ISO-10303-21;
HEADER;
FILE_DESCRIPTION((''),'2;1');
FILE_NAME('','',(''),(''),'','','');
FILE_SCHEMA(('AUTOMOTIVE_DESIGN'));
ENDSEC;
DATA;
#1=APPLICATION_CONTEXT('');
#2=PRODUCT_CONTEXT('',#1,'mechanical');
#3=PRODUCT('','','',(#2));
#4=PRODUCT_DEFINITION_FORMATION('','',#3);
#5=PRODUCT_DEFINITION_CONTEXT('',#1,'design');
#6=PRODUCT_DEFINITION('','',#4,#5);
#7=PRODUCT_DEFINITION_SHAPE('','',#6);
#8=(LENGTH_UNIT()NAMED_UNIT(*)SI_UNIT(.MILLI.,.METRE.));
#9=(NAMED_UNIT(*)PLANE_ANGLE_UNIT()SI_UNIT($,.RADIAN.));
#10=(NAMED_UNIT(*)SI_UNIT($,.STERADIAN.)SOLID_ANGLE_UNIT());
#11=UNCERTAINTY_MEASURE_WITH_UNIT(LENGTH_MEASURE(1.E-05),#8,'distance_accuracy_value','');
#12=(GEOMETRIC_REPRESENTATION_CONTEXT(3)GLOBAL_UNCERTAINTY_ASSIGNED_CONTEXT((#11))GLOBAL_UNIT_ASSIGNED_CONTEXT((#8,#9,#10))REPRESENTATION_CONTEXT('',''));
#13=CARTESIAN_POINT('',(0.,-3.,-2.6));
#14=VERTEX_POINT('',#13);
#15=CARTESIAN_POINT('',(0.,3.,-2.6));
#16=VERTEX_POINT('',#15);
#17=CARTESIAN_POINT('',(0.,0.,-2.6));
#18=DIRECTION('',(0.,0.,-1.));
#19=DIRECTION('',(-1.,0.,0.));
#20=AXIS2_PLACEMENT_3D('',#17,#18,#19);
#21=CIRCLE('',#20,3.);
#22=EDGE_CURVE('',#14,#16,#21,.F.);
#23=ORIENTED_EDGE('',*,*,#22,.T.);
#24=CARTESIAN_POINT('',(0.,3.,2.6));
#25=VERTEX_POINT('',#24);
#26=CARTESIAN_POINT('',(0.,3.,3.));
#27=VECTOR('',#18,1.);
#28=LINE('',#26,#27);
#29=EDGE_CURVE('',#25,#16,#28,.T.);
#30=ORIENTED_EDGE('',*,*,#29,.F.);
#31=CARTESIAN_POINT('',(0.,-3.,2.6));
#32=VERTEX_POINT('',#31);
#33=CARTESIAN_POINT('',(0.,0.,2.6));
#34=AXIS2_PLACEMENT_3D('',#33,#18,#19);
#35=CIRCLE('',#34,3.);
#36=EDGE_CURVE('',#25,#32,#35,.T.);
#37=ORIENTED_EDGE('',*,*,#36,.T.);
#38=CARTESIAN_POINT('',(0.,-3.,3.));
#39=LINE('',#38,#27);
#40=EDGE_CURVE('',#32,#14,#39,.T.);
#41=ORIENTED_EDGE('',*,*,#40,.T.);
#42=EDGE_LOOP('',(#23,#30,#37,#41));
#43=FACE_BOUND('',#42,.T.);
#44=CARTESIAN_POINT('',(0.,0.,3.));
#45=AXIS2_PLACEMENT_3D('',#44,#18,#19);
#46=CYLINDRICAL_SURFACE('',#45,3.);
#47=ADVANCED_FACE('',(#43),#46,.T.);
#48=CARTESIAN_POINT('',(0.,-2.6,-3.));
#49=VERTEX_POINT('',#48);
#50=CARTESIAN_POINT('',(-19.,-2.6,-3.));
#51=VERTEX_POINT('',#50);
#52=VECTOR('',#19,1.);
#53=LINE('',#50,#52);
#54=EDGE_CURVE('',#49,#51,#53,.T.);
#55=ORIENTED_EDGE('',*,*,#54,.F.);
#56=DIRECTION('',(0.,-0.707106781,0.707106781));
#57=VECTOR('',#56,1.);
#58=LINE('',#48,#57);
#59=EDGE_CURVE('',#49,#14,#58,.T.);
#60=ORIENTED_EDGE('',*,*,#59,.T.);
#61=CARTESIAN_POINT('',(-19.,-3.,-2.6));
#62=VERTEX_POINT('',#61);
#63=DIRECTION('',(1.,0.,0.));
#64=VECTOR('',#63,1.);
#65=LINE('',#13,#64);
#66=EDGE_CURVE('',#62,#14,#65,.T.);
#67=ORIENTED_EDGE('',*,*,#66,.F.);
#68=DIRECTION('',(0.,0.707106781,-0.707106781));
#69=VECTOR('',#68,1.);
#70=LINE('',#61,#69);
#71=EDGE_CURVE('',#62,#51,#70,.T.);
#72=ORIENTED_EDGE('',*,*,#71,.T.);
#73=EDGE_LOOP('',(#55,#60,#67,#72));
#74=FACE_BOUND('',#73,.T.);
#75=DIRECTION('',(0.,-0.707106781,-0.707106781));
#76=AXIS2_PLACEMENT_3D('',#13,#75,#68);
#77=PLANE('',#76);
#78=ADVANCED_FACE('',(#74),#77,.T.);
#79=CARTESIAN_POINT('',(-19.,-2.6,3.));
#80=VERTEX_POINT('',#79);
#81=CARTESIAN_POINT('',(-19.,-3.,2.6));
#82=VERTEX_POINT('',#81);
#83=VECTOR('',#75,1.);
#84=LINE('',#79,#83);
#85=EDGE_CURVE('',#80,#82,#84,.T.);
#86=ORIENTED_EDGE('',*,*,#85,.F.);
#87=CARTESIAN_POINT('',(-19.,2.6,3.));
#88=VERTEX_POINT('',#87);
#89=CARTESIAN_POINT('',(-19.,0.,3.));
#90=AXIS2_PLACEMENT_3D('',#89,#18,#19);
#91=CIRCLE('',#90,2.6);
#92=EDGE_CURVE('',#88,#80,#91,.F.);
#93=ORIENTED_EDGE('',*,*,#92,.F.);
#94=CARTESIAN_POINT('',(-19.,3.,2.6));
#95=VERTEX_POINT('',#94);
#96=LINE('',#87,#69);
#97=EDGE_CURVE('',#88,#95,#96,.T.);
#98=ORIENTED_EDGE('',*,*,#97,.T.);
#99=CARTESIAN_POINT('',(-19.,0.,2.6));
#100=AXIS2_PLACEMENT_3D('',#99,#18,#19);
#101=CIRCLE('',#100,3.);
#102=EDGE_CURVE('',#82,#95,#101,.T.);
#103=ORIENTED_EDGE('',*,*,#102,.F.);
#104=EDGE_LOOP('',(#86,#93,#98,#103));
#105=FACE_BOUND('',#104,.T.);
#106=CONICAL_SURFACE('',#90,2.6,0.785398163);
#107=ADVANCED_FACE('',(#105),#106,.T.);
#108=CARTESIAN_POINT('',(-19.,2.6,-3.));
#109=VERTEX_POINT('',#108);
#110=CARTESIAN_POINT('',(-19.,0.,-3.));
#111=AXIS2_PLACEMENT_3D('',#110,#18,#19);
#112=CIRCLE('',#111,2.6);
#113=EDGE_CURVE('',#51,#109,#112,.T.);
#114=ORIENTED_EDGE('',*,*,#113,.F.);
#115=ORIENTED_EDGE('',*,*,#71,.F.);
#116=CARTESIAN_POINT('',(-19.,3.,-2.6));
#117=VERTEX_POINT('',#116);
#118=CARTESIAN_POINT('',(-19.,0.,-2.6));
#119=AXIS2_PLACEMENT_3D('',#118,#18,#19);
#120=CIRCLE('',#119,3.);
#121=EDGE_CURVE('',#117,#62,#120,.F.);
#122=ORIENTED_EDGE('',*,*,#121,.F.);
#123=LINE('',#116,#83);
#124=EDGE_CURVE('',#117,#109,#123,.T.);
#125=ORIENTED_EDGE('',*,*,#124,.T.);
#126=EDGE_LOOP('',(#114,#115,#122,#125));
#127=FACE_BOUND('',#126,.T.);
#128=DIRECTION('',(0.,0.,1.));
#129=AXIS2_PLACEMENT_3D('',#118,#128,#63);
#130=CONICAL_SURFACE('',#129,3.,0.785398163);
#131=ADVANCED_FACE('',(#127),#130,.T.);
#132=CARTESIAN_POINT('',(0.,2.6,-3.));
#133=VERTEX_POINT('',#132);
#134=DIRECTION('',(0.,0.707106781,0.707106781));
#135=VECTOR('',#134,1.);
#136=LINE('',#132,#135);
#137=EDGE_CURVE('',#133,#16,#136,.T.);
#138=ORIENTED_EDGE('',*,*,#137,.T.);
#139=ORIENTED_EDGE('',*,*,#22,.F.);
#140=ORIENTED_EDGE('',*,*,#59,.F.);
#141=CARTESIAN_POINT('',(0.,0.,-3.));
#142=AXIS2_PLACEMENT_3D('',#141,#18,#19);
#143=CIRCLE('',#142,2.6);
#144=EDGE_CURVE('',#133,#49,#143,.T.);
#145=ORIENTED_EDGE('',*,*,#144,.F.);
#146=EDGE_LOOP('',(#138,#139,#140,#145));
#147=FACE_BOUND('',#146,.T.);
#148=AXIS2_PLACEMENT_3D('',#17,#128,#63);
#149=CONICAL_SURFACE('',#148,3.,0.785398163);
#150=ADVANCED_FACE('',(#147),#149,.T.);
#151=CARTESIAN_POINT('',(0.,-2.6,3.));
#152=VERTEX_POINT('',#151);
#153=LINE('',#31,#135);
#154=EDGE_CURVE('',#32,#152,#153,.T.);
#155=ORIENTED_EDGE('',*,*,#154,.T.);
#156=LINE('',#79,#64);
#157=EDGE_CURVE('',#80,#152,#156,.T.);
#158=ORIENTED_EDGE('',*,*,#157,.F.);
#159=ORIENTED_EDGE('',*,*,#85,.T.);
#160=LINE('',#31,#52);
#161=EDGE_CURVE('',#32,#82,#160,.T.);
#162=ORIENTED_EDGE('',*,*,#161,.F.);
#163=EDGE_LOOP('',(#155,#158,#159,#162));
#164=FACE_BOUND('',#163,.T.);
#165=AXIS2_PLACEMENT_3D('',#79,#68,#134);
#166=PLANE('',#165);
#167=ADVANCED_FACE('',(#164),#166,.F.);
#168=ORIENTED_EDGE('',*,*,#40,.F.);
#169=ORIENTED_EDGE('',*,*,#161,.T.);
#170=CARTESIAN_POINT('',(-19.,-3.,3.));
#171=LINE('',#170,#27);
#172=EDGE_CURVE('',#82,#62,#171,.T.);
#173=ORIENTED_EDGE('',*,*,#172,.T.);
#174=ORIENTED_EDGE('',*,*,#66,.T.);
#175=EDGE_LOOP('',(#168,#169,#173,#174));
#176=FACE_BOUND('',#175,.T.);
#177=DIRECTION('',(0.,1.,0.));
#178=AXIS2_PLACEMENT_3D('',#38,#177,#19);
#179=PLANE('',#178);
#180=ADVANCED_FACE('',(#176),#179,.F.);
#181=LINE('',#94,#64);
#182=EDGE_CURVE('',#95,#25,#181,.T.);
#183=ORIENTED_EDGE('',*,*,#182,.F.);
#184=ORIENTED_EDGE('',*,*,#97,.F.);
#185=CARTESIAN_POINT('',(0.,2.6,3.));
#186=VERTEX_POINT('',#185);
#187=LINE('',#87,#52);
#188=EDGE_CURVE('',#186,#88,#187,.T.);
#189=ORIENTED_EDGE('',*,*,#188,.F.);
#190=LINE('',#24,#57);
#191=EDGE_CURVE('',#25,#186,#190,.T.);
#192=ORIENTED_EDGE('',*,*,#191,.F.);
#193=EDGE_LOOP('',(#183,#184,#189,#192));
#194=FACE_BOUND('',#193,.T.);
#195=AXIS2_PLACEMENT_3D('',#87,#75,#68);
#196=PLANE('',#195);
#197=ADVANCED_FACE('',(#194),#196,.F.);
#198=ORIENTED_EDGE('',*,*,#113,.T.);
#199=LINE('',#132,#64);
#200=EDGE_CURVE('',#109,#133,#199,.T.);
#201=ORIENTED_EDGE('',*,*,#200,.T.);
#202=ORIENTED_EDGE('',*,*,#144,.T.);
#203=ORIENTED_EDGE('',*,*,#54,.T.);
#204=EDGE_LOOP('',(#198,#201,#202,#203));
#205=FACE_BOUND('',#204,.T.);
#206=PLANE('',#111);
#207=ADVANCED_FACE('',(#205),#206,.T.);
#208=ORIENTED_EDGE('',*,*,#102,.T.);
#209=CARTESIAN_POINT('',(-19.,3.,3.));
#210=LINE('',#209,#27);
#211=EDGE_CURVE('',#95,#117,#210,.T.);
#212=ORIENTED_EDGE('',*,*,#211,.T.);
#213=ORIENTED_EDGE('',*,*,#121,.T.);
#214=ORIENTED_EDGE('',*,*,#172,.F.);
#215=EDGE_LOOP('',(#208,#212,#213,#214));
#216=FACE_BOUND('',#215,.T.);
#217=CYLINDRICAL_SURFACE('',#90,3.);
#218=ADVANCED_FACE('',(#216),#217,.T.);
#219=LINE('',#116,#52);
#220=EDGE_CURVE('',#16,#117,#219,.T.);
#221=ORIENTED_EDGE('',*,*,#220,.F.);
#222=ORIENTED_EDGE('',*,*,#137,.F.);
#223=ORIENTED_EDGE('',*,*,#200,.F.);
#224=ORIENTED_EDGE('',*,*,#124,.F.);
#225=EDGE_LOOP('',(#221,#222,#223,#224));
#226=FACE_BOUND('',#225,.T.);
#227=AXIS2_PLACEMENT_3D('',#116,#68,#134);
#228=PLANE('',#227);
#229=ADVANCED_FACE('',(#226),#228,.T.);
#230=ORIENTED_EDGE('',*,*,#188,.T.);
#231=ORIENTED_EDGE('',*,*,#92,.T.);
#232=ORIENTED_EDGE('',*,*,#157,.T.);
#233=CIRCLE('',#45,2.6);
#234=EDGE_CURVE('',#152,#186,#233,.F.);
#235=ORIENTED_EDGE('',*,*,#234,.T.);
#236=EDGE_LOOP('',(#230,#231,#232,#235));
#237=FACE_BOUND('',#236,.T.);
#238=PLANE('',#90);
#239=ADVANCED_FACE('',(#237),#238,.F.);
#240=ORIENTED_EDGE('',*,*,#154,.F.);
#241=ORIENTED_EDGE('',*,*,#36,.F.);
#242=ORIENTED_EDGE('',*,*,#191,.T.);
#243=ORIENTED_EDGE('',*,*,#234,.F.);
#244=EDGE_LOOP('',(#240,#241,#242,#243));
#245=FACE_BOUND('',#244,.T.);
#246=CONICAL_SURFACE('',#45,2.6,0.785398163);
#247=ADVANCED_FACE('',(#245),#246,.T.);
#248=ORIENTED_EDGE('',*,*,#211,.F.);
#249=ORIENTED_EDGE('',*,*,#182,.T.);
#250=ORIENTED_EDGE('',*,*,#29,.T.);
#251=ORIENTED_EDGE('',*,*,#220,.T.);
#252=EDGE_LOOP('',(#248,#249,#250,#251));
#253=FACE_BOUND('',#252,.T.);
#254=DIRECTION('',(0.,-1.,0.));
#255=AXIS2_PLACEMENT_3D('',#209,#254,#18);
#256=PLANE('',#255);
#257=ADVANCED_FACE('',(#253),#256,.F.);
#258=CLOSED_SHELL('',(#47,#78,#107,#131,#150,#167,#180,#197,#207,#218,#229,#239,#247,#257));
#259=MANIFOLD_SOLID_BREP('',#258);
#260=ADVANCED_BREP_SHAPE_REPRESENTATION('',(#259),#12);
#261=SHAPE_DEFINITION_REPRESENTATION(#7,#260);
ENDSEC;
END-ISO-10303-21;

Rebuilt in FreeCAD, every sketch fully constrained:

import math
import FreeCAD as App
import Part
import Sketcher

V = App.Vector


def edges_at(feature, points):
    """Names of the edges that pass closest to the given points."""
    edges = feature.Shape.Edges
    near = lambda p: min(range(len(edges)), key=lambda i: edges[i].distToShape(Part.Vertex(*p))[0])
    return sorted({f"Edge{near(p) + 1}" for p in points})

doc = App.newDocument("Part")
params = doc.addObject("Spreadsheet::Sheet", "Params")
for row, (alias, value) in enumerate([
    ("sketch1_radius", "3 mm"),
    ("sketch1_width", "19 mm"),
    ("pad1_length", "6 mm"),
    ("chamfer_size", "0.4 mm"),
], start=1):
    params.set(f"A{row}", alias)
    params.set(f"B{row}", "=" + value)
    params.setAlias(f"B{row}", alias)

body = doc.addObject("PartDesign::Body", "Body")

sketch1 = body.newObject("Sketcher::SketchObject", "Sketch")
sketch1.AttachmentSupport = (doc.getObject("XY_Plane"), [""])
sketch1.MapMode = "FlatFace"
sketch1.addGeometry(Part.LineSegment(V(0, 3, 0), V(-19, 3, 0)), False)
sketch1.addGeometry(Part.ArcOfCircle(Part.Circle(V(-19, 0, 0), V(0, 0, 1), 3), math.radians(90), math.radians(270)), False)
sketch1.addGeometry(Part.LineSegment(V(-19, -3, 0), V(0, -3, 0)), False)
sketch1.addGeometry(Part.ArcOfCircle(Part.Circle(V(0, 0, 0), V(0, 0, 1), 3), math.radians(-90), math.radians(90)), False)
sketch1.addConstraint(Sketcher.Constraint("Tangent", 0, 2, 1, 1))
sketch1.addConstraint(Sketcher.Constraint("Tangent", 1, 2, 2, 1))
sketch1.addConstraint(Sketcher.Constraint("Tangent", 2, 2, 3, 1))
sketch1.addConstraint(Sketcher.Constraint("Tangent", 3, 2, 0, 1))
sketch1.addConstraint(Sketcher.Constraint("Horizontal", 0))
sketch1.addConstraint(Sketcher.Constraint("Horizontal", 2))
sketch1.addConstraint(Sketcher.Constraint("Coincident", 3, 3, -1, 1))
sketch1.addConstraint(Sketcher.Constraint("Radius", 1, 3.0))
sketch1.addConstraint(Sketcher.Constraint("DistanceX", 0, 2, 0, 1, 19.0))
sketch1.setExpression("Constraints[7]", "Params.sketch1_radius")
sketch1.setExpression("Constraints[8]", "Params.sketch1_width")
pad1 = body.newObject("PartDesign::Pad", "Pad")
pad1.Profile = sketch1
pad1.setExpression("Length", "Params.pad1_length")
pad1.Midplane = True
doc.recompute()

chamfer = body.newObject("PartDesign::Chamfer", "Chamfer")
chamfer.Base = (pad1, edges_at(pad1, [
    (3, 0, 3),
    (-9.5, 3, 3),
    (-22, 0, 3),
    (-9.5, 3, -3),
    (3, 0, -3),
    (-9.5, -3, -3),
    (-22, 0, -3),
    (-9.5, -3, 3),
]))
chamfer.setExpression("Size", "Params.chamfer_size")

doc.recompute()
